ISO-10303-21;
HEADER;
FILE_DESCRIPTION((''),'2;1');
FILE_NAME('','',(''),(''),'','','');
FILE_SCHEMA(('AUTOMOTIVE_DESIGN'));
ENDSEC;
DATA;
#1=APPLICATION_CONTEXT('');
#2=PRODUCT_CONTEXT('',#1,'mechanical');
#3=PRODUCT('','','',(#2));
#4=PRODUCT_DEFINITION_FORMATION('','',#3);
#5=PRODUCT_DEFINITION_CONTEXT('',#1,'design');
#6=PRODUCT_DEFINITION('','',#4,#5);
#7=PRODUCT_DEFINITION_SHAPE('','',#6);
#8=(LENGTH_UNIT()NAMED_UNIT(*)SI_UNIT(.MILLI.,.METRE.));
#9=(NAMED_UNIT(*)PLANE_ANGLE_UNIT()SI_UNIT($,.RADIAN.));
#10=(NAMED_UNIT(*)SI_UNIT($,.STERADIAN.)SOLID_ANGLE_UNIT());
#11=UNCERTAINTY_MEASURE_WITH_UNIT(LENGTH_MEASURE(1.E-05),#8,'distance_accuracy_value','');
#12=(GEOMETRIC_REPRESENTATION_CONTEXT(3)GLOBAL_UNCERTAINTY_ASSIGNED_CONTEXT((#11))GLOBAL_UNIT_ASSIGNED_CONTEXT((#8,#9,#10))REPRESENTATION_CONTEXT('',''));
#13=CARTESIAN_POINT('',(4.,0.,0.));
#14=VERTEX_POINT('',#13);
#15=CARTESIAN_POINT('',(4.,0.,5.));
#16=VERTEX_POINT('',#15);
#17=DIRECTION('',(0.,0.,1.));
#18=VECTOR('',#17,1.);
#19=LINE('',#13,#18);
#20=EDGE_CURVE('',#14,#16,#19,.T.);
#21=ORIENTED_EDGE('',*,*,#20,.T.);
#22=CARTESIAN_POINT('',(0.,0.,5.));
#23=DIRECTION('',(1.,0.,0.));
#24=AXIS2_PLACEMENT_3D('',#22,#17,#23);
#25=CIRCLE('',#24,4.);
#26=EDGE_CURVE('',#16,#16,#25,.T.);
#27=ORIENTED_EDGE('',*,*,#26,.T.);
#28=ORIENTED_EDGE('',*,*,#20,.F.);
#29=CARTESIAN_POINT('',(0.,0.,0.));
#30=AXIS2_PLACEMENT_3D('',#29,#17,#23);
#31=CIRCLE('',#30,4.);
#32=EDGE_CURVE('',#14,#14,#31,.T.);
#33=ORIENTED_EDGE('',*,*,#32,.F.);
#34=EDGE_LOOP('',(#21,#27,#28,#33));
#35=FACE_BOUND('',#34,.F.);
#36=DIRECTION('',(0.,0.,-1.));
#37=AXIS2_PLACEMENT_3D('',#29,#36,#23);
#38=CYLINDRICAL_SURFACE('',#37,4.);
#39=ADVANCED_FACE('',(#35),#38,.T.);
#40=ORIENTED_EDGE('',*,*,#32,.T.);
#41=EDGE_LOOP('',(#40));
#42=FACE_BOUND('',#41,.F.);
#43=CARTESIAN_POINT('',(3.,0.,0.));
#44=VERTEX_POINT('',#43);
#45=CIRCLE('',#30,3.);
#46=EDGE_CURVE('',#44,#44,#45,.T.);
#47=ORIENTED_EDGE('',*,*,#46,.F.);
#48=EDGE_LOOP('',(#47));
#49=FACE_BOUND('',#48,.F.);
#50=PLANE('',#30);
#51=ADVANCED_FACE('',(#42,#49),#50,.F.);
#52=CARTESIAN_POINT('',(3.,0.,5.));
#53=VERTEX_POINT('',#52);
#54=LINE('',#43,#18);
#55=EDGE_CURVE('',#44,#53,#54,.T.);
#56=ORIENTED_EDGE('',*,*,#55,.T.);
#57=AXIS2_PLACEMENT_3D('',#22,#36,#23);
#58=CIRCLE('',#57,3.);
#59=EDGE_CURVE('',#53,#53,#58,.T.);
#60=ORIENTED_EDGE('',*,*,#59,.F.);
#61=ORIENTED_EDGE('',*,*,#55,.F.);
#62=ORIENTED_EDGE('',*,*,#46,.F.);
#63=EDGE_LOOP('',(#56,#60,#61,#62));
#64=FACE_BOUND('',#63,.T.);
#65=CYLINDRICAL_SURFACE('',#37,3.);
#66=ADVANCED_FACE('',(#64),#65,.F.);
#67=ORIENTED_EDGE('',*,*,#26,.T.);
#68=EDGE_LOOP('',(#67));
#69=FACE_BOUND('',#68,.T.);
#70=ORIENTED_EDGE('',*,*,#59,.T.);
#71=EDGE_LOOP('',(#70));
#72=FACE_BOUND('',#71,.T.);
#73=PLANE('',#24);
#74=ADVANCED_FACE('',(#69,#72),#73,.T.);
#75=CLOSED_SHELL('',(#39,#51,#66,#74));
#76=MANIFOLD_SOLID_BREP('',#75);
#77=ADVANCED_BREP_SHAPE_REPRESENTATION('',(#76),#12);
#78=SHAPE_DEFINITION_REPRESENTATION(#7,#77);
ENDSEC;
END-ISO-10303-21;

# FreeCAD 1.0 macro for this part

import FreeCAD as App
import Part
import Sketcher
from FreeCAD import Vector

doc = App.newDocument("Part")
body = doc.addObject("PartDesign::Body", "Body")

sketch1 = doc.addObject("Sketcher::SketchObject", "Sketch")
body.addObject(sketch1)
sketch1.AttachmentSupport = (doc.XY_Plane, [""])
sketch1.MapMode = "FlatFace"
sketch1.addGeometry(Part.Circle(Vector(0, 0, 0), Vector(0, 0, 1), 4), False)
sketch1.addConstraint([
    Sketcher.Constraint("Coincident", 0, 3, -1, 1),
    Sketcher.Constraint("Diameter", 0, 8.0),
])
pad1 = doc.addObject("PartDesign::Pad", "Pad")
body.addObject(pad1)
pad1.Profile = sketch1
pad1.Length = 5

sketch2 = doc.addObject("Sketcher::SketchObject", "Sketch001")
body.addObject(sketch2)
sketch2.AttachmentSupport = (doc.XY_Plane, [""])
sketch2.MapMode = "FlatFace"
sketch2.addGeometry(Part.Circle(Vector(0, 0, 0), Vector(0, 0, 1), 3), False)
sketch2.addConstraint([
    Sketcher.Constraint("Coincident", 0, 3, -1, 1),
    Sketcher.Constraint("Diameter", 0, 6.0),
])
pocket1 = doc.addObject("PartDesign::Pocket", "Pocket")
body.addObject(pocket1)
pocket1.Profile = sketch2
pocket1.Length = 100
pocket1.Reversed = True

doc.recompute()
